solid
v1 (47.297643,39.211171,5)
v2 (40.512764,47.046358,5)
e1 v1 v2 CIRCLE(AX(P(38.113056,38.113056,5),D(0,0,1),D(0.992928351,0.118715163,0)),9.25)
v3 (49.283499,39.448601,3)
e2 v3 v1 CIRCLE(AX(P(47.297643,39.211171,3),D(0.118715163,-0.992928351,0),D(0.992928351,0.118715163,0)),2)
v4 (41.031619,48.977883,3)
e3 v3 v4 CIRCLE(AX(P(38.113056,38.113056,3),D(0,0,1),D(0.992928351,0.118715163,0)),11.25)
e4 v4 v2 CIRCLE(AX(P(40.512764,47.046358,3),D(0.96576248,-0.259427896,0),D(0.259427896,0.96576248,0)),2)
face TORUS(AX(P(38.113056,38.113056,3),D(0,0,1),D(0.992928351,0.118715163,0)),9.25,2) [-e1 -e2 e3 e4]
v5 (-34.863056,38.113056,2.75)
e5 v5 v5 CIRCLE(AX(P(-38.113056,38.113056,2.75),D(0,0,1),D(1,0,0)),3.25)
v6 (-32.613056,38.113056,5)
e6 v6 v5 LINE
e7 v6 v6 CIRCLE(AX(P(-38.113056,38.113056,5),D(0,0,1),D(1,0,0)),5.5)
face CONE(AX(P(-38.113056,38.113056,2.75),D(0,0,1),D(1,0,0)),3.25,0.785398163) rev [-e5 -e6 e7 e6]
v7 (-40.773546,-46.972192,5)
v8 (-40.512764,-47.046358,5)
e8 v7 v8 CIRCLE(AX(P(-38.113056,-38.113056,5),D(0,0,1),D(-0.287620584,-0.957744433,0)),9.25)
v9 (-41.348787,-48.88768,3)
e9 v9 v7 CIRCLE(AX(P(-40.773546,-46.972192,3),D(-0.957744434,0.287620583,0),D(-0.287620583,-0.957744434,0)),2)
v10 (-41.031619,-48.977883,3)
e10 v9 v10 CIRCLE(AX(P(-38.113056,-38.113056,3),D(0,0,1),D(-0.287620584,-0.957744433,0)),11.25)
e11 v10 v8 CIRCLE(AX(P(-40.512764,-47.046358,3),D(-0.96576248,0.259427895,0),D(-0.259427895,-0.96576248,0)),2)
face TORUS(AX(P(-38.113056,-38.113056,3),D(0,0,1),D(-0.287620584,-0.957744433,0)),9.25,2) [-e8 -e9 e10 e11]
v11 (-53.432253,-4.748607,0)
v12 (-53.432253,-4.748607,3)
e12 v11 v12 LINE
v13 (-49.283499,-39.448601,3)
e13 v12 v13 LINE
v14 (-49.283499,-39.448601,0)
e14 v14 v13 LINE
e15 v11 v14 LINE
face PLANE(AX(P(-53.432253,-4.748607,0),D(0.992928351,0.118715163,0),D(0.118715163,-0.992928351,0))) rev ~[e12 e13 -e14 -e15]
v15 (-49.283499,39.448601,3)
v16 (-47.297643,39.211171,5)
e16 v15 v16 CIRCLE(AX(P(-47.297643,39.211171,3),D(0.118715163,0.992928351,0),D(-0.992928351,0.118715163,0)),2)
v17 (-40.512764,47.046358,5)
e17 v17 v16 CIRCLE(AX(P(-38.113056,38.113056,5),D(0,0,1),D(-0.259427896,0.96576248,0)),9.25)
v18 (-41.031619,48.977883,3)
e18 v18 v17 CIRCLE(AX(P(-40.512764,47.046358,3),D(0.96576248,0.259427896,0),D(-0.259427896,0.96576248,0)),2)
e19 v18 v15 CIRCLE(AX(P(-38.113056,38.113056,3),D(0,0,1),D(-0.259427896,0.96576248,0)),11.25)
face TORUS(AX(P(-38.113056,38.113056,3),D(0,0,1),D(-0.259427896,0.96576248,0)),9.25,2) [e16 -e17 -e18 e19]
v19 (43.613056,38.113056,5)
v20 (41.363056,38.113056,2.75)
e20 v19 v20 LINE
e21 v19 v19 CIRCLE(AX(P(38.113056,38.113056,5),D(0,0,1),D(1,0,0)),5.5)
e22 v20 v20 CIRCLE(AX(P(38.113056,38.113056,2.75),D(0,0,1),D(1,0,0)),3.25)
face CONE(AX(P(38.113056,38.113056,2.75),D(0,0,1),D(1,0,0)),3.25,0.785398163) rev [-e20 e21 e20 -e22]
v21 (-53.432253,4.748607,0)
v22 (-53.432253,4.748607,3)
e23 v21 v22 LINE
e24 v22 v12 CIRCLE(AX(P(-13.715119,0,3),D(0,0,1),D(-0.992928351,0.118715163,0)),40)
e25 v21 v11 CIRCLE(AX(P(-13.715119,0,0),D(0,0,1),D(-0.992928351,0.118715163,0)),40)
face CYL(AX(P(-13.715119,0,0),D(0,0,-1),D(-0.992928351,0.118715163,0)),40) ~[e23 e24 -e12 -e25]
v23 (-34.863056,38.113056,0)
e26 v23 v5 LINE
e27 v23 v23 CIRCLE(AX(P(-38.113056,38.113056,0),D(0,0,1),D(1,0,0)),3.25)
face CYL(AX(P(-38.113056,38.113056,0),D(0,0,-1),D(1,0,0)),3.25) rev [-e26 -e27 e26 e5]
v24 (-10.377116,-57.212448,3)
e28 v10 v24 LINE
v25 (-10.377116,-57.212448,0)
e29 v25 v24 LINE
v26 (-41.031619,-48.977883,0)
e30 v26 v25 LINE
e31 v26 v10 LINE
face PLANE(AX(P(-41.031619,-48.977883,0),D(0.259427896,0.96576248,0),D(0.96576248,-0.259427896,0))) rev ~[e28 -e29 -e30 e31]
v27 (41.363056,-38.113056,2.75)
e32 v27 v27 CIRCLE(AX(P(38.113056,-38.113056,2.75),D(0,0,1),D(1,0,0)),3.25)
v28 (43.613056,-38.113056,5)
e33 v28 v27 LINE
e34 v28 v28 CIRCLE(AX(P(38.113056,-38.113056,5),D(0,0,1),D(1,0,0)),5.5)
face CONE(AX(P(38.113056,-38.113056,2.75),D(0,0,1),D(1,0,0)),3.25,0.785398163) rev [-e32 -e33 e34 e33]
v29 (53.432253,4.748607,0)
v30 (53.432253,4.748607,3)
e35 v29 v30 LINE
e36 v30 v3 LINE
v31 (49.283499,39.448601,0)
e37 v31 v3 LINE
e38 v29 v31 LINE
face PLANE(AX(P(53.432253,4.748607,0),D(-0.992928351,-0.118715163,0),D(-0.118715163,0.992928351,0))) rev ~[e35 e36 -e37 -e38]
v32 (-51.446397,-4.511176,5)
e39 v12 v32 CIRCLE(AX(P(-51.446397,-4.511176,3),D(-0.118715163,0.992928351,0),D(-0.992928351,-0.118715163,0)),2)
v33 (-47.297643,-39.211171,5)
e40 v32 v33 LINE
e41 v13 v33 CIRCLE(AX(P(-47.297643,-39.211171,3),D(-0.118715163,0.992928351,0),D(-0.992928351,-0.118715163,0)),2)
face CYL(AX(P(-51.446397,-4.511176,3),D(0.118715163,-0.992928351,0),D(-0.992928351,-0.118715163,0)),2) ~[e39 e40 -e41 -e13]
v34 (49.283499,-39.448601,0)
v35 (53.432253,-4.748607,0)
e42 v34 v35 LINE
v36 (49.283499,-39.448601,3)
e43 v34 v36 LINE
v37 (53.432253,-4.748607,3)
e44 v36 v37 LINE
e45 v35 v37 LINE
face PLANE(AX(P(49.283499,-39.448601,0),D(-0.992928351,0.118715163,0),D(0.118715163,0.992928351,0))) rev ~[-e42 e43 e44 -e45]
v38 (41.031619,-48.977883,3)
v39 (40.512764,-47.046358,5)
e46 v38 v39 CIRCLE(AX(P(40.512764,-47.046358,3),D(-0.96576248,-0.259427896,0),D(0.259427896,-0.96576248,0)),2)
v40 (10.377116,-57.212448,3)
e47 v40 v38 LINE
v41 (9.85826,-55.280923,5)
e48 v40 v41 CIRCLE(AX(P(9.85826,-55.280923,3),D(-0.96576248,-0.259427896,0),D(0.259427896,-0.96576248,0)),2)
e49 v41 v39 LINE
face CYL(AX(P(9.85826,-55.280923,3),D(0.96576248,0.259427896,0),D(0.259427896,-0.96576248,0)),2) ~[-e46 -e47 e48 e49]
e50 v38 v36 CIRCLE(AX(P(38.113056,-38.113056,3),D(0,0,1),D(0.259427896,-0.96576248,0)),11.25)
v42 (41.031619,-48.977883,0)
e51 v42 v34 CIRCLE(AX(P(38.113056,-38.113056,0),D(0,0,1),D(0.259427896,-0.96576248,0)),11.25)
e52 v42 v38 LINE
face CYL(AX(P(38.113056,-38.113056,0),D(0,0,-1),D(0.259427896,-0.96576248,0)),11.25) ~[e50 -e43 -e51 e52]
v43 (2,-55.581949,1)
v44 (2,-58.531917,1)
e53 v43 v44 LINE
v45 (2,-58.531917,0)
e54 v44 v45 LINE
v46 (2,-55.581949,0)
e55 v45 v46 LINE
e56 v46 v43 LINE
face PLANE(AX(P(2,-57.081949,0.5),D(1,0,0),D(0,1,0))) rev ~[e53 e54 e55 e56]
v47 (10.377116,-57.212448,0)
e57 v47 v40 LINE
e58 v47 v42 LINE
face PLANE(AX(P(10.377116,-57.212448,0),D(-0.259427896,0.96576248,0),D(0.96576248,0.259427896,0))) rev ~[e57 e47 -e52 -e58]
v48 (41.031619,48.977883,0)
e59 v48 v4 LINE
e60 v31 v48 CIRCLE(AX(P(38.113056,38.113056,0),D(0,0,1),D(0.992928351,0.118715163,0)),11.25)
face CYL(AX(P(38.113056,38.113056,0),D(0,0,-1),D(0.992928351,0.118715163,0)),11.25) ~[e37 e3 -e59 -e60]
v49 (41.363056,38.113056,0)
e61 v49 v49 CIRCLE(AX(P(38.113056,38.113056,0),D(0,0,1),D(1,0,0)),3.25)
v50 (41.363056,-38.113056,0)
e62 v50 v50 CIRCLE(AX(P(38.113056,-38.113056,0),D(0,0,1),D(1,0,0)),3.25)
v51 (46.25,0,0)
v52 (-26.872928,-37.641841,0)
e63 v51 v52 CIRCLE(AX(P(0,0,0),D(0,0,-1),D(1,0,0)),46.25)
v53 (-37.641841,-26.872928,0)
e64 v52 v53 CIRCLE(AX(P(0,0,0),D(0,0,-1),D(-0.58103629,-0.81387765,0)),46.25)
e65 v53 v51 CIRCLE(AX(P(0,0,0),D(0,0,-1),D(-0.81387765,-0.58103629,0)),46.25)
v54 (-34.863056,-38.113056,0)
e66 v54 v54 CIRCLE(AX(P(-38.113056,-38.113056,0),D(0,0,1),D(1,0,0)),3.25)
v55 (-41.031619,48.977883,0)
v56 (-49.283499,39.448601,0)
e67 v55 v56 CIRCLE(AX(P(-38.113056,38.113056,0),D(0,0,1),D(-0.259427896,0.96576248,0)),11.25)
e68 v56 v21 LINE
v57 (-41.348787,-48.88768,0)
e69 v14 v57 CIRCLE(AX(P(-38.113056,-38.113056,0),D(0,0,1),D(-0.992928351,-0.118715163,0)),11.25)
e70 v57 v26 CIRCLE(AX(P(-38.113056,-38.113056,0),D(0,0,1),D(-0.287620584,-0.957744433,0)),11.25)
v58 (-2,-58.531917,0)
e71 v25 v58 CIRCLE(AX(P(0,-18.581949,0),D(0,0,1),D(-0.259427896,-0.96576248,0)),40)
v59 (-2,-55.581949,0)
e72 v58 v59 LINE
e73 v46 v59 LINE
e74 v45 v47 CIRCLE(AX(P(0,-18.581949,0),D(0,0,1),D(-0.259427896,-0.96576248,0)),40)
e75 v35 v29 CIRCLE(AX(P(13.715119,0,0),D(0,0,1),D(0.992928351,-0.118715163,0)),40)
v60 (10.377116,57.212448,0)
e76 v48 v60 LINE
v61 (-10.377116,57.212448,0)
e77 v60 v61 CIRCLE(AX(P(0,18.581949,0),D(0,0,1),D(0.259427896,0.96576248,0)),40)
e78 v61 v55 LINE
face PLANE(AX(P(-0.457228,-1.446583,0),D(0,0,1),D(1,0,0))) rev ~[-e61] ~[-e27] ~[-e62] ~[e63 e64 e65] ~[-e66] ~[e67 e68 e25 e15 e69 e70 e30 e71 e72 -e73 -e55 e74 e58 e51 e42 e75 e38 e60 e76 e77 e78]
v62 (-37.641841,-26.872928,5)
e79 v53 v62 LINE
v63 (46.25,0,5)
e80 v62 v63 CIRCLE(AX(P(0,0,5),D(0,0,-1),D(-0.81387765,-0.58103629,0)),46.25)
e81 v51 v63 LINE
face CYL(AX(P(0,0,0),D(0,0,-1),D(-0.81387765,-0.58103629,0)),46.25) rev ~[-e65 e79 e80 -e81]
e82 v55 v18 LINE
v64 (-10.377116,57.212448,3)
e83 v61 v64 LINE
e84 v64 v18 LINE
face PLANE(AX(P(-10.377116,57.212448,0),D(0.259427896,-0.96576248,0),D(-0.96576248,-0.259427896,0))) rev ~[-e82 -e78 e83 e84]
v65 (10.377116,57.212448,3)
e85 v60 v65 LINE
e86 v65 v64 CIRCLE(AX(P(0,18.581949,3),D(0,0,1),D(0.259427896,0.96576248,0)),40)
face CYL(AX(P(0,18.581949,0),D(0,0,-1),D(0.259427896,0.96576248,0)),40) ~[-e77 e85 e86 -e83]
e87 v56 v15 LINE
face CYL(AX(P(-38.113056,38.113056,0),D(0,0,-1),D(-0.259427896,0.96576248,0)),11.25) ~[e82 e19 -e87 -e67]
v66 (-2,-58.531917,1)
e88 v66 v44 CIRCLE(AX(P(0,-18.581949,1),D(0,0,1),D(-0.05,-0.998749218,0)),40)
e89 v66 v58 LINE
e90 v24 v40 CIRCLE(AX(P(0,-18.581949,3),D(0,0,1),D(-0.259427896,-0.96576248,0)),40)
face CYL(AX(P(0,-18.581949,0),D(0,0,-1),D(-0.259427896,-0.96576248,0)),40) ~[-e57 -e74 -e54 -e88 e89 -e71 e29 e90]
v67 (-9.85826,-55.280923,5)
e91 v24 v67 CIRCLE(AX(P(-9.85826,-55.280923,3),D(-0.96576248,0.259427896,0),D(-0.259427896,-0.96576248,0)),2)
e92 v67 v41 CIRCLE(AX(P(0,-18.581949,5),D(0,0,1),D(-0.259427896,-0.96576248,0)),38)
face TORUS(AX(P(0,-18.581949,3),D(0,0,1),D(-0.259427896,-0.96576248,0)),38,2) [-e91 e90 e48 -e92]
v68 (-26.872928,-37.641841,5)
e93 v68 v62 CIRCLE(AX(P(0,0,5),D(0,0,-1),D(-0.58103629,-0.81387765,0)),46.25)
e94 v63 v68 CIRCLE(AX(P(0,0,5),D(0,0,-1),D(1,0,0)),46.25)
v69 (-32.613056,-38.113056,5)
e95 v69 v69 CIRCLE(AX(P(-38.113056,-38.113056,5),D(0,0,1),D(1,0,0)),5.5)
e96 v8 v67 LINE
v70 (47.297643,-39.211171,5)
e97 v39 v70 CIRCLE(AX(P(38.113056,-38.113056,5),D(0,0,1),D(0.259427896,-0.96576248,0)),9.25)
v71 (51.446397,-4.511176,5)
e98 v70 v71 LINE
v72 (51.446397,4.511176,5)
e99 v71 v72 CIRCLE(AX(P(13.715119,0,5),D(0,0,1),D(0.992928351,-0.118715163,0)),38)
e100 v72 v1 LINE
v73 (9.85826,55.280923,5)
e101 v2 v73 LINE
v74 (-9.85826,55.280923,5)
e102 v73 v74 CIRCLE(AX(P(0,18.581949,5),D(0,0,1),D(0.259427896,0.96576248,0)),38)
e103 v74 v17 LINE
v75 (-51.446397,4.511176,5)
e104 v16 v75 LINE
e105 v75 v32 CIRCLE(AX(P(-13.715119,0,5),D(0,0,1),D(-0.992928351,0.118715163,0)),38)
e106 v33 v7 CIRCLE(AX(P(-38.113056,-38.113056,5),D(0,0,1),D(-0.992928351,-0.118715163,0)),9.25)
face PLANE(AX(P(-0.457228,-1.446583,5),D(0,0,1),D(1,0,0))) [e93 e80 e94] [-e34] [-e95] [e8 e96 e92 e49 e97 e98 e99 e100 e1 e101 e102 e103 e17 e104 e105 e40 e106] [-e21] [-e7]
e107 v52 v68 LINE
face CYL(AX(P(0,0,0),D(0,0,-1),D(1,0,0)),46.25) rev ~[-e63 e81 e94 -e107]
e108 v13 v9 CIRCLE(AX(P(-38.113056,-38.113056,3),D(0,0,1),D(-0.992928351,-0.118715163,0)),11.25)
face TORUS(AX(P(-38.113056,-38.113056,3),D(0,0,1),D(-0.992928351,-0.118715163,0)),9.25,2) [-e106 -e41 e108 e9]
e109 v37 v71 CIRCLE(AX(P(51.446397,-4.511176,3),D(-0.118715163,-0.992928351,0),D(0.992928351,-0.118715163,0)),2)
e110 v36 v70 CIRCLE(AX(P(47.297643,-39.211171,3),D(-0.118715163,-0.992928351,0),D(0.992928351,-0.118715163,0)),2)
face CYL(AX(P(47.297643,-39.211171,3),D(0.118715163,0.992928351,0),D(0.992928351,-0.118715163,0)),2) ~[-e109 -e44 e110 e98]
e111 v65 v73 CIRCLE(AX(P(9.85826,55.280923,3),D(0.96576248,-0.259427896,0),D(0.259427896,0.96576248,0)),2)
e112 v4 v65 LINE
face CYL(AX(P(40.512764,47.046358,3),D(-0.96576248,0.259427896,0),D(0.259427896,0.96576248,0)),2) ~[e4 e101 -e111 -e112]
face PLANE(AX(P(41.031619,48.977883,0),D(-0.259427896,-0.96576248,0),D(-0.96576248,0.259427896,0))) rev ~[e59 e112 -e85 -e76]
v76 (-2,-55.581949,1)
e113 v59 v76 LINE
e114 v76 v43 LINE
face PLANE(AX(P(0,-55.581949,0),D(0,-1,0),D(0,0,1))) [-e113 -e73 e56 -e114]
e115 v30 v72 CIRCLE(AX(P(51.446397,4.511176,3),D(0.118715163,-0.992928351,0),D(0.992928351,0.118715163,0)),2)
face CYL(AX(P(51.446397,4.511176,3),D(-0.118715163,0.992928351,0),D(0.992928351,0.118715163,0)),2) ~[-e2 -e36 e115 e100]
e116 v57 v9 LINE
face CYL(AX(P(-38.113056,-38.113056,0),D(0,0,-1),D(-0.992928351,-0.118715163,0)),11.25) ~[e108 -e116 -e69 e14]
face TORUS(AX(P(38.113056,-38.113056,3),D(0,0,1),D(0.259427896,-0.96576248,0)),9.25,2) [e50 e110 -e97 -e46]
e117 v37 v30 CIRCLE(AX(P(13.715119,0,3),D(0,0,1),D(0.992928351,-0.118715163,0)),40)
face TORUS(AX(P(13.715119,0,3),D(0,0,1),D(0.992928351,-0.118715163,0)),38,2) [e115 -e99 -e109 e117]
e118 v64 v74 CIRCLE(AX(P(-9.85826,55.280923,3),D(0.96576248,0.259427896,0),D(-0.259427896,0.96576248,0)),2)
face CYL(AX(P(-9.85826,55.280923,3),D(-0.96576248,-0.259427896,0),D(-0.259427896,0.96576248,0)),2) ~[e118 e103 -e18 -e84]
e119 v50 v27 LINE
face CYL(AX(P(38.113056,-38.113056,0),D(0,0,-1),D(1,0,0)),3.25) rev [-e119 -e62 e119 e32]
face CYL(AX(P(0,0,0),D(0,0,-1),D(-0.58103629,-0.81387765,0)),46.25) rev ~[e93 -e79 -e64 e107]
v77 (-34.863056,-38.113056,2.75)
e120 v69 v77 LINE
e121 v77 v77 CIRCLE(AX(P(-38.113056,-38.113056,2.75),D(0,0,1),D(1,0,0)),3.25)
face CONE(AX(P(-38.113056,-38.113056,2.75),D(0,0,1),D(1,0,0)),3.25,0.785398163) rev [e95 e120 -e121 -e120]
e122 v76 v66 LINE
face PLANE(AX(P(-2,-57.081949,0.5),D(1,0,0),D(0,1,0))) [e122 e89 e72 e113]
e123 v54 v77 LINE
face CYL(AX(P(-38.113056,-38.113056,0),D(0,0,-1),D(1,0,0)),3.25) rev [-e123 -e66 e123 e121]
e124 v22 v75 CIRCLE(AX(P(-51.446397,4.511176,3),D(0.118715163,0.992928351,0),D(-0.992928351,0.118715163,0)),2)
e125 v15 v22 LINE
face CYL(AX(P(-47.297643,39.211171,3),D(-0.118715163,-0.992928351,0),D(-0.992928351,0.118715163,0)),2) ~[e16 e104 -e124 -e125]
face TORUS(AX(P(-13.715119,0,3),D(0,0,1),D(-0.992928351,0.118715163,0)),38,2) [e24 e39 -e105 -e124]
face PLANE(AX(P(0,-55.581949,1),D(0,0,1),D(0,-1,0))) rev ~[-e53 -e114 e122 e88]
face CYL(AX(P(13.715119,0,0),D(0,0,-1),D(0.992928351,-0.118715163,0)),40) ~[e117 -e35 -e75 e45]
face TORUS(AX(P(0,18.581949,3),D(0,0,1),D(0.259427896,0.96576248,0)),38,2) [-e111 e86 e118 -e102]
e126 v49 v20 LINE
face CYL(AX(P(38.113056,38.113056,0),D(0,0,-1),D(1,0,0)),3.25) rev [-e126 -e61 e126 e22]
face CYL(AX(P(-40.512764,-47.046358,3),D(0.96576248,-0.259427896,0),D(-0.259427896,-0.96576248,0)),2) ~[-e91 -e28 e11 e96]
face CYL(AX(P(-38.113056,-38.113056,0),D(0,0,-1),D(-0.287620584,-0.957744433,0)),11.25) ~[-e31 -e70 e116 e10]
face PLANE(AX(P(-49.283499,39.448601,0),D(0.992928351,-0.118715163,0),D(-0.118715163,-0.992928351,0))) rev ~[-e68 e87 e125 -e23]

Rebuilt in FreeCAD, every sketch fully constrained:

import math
import FreeCAD as App
import Part
import Sketcher

V = App.Vector
Q = App.Units.Quantity


def edges_at(feature, points):
    """Names of the edges that pass closest to the given points."""
    edges = feature.Shape.Edges
    near = lambda p: min(range(len(edges)), key=lambda i: edges[i].distToShape(Part.Vertex(*p))[0])
    return sorted({f"Edge{near(p) + 1}" for p in points})

doc = App.newDocument("Part")
params = doc.addObject("Spreadsheet::Sheet", "Params")
for row, (alias, value) in enumerate([
    ("sketch1_radius", "40 mm"),
    ("sketch1_diameter", "6.5 mm"),
    ("sketch1_radius2", "11.25 mm"),
    ("sketch1_radius3", "46.25 mm"),
    ("pad1_length", "5 mm"),
    ("fillet_radius", "2 mm"),
    ("chamfer_size", "2.25 mm"),
    ("sketch2_width", "3 mm"),
    ("sketch2_height", "1 mm"),
    ("pocket1_length", "2 mm"),
    ("pocket1_length2", "2 mm"),
], start=1):
    params.set(f"A{row}", alias)
    params.set(f"B{row}", "=" + value)
    params.setAlias(f"B{row}", alias)

body = doc.addObject("PartDesign::Body", "Body")

sketch1 = body.newObject("Sketcher::SketchObject", "Sketch")
sketch1.AttachmentSupport = (doc.getObject("XY_Plane"), [""])
sketch1.MapMode = "FlatFace"
sketch1.addGeometry([
    Part.LineSegment(V(-53.43, -4.75, 0), V(-49.28, -39.45, 0)),
    Part.ArcOfCircle(Part.Circle(V(-38.11, -38.11, 0), V(0, 0, 1), 11.25), math.radians(-173), math.radians(-107)),
    Part.ArcOfCircle(Part.Circle(V(-38.11, -38.11, 0), V(0, 0, 1), 11.25), math.radians(-106.72), math.radians(-105.04)),
    Part.LineSegment(V(-41.03, -48.98, 0), V(-10.38, -57.21, 0)),
    Part.ArcOfCircle(Part.Circle(V(0, -18.58, 0), V(0, 0, 1), 40), math.radians(-105), math.radians(-75)),
    Part.LineSegment(V(10.38, -57.21, 0), V(41.03, -48.98, 0)),
    Part.ArcOfCircle(Part.Circle(V(38.11, -38.11, 0), V(0, 0, 1), 11.25), math.radians(-75), math.radians(-7)),
    Part.LineSegment(V(49.28, -39.45, 0), V(53.43, -4.75, 0)),
    Part.ArcOfCircle(Part.Circle(V(13.72, 0, 0), V(0, 0, 1), 40), math.radians(-6.82), math.radians(6.82)),
    Part.LineSegment(V(53.43, 4.75, 0), V(49.28, 39.45, 0)),
    Part.ArcOfCircle(Part.Circle(V(38.11, 38.11, 0), V(0, 0, 1), 11.25), math.radians(7), math.radians(75)),
    Part.LineSegment(V(41.03, 48.98, 0), V(10.38, 57.21, 0)),
    Part.ArcOfCircle(Part.Circle(V(0, 18.58, 0), V(0, 0, 1), 40), math.radians(75), math.radians(105)),
    Part.LineSegment(V(-10.38, 57.21, 0), V(-41.03, 48.98, 0)),
    Part.ArcOfCircle(Part.Circle(V(-38.11, 38.11, 0), V(0, 0, 1), 11.25), math.radians(105), math.radians(173)),
    Part.LineSegment(V(-49.28, 39.45, 0), V(-53.43, 4.75, 0)),
    Part.ArcOfCircle(Part.Circle(V(-13.72, 0, 0), V(0, 0, 1), 40), math.radians(173.18), math.radians(186.82)),
    Part.Circle(V(-38.11, -38.11, 0), V(0, 0, 1), 3.25),
    Part.Circle(V(38.11, -38.11, 0), V(0, 0, 1), 3.25),
    Part.Circle(V(-38.11, 38.11, 0), V(0, 0, 1), 3.25),
    Part.ArcOfCircle(Part.Circle(V(0, 0, 0), V(0, 0, 1), 46.25), math.radians(0), math.radians(216)),
    Part.ArcOfCircle(Part.Circle(V(0, 0, 0), V(0, 0, 1), 46.25), math.radians(-126), math.radians(0)),
    Part.ArcOfCircle(Part.Circle(V(0, 0, 0), V(0, 0, 1), 46.25), math.radians(-144.48), math.radians(-125.52)),
    Part.Circle(V(38.11, 38.11, 0), V(0, 0, 1), 3.25),
], False)
sketch1.addConstraint([
    Sketcher.Constraint("Tangent", 0, 2, 1, 1),
    Sketcher.Constraint("Tangent", 1, 2, 2, 1),
    Sketcher.Constraint("Tangent", 2, 2, 3, 1),
    Sketcher.Constraint("Tangent", 3, 2, 4, 1),
    Sketcher.Constraint("Tangent", 4, 2, 5, 1),
    Sketcher.Constraint("Tangent", 5, 2, 6, 1),
    Sketcher.Constraint("Tangent", 6, 2, 7, 1),
    Sketcher.Constraint("Tangent", 7, 2, 8, 1),
    Sketcher.Constraint("Tangent", 8, 2, 9, 1),
    Sketcher.Constraint("Tangent", 9, 2, 10, 1),
    Sketcher.Constraint("Tangent", 10, 2, 11, 1),
    Sketcher.Constraint("Tangent", 11, 2, 12, 1),
    Sketcher.Constraint("Tangent", 12, 2, 13, 1),
    Sketcher.Constraint("Tangent", 13, 2, 14, 1),
    Sketcher.Constraint("Tangent", 14, 2, 15, 1),
    Sketcher.Constraint("Tangent", 15, 2, 16, 1),
    Sketcher.Constraint("Tangent", 16, 2, 0, 1),
    Sketcher.Constraint("Tangent", 20, 1, 21, 2),
    Sketcher.Constraint("Tangent", 21, 1, 22, 2),
    Sketcher.Constraint("Tangent", 22, 1, 20, 2),
    Sketcher.Constraint("Coincident", 20, 3, -1, 1),
    Sketcher.Constraint("Coincident", 17, 3, 1, 3),
    Sketcher.Constraint("Coincident", 18, 3, 6, 3),
    Sketcher.Constraint("Coincident", 19, 3, 14, 3),
    Sketcher.Constraint("Coincident", 23, 3, 10, 3),
    Sketcher.Constraint("Equal", 1, 2),
    Sketcher.Constraint("Equal", 2, 6),
    Sketcher.Constraint("Equal", 4, 8),
    Sketcher.Constraint("Equal", 6, 10),
    Sketcher.Constraint("Equal", 8, 12),
    Sketcher.Constraint("Equal", 10, 14),
    Sketcher.Constraint("Equal", 12, 16),
    Sketcher.Constraint("Equal", 17, 18),
    Sketcher.Constraint("Equal", 18, 19),
    Sketcher.Constraint("Equal", 19, 23),
    Sketcher.Constraint("Symmetric", 1, 3, 10, 3, -1, 1),
    Sketcher.Constraint("Symmetric", 4, 3, 12, 3, -1, 1),
    Sketcher.Constraint("Symmetric", 6, 3, 14, 3, -1, 1),
    Sketcher.Constraint("Symmetric", 8, 3, 16, 3, -1, 1),
    Sketcher.Constraint("Symmetric", 1, 3, 6, 3, -2),
    Sketcher.Constraint("PointOnObject", 4, 3, -2),
    Sketcher.Constraint("PointOnObject", 8, 3, -1),
    Sketcher.Constraint("PointOnObject", 20, 1, -1),
    Sketcher.Constraint("Radius", 4, Q("40 mm")),
    Sketcher.Constraint("Diameter", 17, Q("6.5 mm")),
    Sketcher.Constraint("Radius", 1, Q("11.25 mm")),
    Sketcher.Constraint("Radius", 20, Q("46.25 mm")),
    Sketcher.Constraint("DistanceX", 0, 2, -1, 1, Q("49.283499 mm")),
    Sketcher.Constraint("DistanceY", 0, 2, -1, 1, Q("39.448601 mm")),
    Sketcher.Constraint("DistanceY", 4, 2, 4, 3, Q("38.630499 mm")),
    Sketcher.Constraint("Distance", 0, Q("34.947128 mm")),
    Sketcher.Constraint("DistanceY", 1, 2, -1, 1, Q("48.88768 mm")),
    Sketcher.Constraint("DistanceX", 21, 1, -1, 1, Q("26.872928 mm")),
    Sketcher.Constraint("DistanceX", 22, 1, -1, 1, Q("37.641841 mm")),
])
sketch1.setExpression("Constraints[43]", "Params.sketch1_radius")
sketch1.setExpression("Constraints[44]", "Params.sketch1_diameter")
sketch1.setExpression("Constraints[45]", "Params.sketch1_radius2")
sketch1.setExpression("Constraints[46]", "Params.sketch1_radius3")
pad1 = body.newObject("PartDesign::Pad", "Pad")
pad1.Profile = sketch1
pad1.setExpression("Length", "Params.pad1_length")
doc.recompute()

fillet = body.newObject("PartDesign::Fillet", "Fillet")
fillet.Base = (pad1, edges_at(pad1, [(-25.704, 53.095, 5)]))
fillet.setExpression("Radius", "Params.fillet_radius")
doc.recompute()

chamfer = body.newObject("PartDesign::Chamfer", "Chamfer")
chamfer.Base = (fillet, edges_at(fillet, [
    (-41.363, 38.113, 5),
    (34.863, 38.113, 5),
    (34.863, -38.113, 5),
    (-41.363, -38.113, 5),
]))
chamfer.setExpression("Size", "Params.chamfer_size")

sketch2 = body.newObject("Sketcher::SketchObject", "Sketch001")
sketch2.AttachmentSupport = (doc.getObject("YZ_Plane"), [""])
sketch2.MapMode = "FlatFace"
sketch2.addGeometry([
    Part.LineSegment(V(-58.6, 0, 0), V(-55.6, 0, 0)),
    Part.LineSegment(V(-55.6, 0, 0), V(-55.6, 1, 0)),
    Part.LineSegment(V(-55.6, 1, 0), V(-58.6, 1, 0)),
    Part.LineSegment(V(-58.6, 1, 0), V(-58.6, 0, 0)),
], False)
sketch2.addConstraint([
    Sketcher.Constraint("Coincident", 0, 2, 1, 1),
    Sketcher.Constraint("Coincident", 1, 2, 2, 1),
    Sketcher.Constraint("Coincident", 2, 2, 3, 1),
    Sketcher.Constraint("Coincident", 3, 2, 0, 1),
    Sketcher.Constraint("Horizontal", 0),
    Sketcher.Constraint("Vertical", 1),
    Sketcher.Constraint("Horizontal", 2),
    Sketcher.Constraint("Vertical", 3),
    Sketcher.Constraint("PointOnObject", 0, 2, -1),
    Sketcher.Constraint("DistanceX", 0, 1, 0, 2, Q("3 mm")),
    Sketcher.Constraint("DistanceY", 1, 1, 1, 2, Q("1 mm")),
    Sketcher.Constraint("DistanceX", 0, 2, -1, 1, Q("55.581949 mm")),
])
sketch2.setExpression("Constraints[9]", "Params.sketch2_width")
sketch2.setExpression("Constraints[10]", "Params.sketch2_height")
pocket1 = body.newObject("PartDesign::Pocket", "Pocket")
pocket1.Profile = sketch2
pocket1.Type = "TwoLengths"
pocket1.setExpression("Length", "Params.pocket1_length")
pocket1.setExpression("Length2", "Params.pocket1_length2")

doc.recompute()
